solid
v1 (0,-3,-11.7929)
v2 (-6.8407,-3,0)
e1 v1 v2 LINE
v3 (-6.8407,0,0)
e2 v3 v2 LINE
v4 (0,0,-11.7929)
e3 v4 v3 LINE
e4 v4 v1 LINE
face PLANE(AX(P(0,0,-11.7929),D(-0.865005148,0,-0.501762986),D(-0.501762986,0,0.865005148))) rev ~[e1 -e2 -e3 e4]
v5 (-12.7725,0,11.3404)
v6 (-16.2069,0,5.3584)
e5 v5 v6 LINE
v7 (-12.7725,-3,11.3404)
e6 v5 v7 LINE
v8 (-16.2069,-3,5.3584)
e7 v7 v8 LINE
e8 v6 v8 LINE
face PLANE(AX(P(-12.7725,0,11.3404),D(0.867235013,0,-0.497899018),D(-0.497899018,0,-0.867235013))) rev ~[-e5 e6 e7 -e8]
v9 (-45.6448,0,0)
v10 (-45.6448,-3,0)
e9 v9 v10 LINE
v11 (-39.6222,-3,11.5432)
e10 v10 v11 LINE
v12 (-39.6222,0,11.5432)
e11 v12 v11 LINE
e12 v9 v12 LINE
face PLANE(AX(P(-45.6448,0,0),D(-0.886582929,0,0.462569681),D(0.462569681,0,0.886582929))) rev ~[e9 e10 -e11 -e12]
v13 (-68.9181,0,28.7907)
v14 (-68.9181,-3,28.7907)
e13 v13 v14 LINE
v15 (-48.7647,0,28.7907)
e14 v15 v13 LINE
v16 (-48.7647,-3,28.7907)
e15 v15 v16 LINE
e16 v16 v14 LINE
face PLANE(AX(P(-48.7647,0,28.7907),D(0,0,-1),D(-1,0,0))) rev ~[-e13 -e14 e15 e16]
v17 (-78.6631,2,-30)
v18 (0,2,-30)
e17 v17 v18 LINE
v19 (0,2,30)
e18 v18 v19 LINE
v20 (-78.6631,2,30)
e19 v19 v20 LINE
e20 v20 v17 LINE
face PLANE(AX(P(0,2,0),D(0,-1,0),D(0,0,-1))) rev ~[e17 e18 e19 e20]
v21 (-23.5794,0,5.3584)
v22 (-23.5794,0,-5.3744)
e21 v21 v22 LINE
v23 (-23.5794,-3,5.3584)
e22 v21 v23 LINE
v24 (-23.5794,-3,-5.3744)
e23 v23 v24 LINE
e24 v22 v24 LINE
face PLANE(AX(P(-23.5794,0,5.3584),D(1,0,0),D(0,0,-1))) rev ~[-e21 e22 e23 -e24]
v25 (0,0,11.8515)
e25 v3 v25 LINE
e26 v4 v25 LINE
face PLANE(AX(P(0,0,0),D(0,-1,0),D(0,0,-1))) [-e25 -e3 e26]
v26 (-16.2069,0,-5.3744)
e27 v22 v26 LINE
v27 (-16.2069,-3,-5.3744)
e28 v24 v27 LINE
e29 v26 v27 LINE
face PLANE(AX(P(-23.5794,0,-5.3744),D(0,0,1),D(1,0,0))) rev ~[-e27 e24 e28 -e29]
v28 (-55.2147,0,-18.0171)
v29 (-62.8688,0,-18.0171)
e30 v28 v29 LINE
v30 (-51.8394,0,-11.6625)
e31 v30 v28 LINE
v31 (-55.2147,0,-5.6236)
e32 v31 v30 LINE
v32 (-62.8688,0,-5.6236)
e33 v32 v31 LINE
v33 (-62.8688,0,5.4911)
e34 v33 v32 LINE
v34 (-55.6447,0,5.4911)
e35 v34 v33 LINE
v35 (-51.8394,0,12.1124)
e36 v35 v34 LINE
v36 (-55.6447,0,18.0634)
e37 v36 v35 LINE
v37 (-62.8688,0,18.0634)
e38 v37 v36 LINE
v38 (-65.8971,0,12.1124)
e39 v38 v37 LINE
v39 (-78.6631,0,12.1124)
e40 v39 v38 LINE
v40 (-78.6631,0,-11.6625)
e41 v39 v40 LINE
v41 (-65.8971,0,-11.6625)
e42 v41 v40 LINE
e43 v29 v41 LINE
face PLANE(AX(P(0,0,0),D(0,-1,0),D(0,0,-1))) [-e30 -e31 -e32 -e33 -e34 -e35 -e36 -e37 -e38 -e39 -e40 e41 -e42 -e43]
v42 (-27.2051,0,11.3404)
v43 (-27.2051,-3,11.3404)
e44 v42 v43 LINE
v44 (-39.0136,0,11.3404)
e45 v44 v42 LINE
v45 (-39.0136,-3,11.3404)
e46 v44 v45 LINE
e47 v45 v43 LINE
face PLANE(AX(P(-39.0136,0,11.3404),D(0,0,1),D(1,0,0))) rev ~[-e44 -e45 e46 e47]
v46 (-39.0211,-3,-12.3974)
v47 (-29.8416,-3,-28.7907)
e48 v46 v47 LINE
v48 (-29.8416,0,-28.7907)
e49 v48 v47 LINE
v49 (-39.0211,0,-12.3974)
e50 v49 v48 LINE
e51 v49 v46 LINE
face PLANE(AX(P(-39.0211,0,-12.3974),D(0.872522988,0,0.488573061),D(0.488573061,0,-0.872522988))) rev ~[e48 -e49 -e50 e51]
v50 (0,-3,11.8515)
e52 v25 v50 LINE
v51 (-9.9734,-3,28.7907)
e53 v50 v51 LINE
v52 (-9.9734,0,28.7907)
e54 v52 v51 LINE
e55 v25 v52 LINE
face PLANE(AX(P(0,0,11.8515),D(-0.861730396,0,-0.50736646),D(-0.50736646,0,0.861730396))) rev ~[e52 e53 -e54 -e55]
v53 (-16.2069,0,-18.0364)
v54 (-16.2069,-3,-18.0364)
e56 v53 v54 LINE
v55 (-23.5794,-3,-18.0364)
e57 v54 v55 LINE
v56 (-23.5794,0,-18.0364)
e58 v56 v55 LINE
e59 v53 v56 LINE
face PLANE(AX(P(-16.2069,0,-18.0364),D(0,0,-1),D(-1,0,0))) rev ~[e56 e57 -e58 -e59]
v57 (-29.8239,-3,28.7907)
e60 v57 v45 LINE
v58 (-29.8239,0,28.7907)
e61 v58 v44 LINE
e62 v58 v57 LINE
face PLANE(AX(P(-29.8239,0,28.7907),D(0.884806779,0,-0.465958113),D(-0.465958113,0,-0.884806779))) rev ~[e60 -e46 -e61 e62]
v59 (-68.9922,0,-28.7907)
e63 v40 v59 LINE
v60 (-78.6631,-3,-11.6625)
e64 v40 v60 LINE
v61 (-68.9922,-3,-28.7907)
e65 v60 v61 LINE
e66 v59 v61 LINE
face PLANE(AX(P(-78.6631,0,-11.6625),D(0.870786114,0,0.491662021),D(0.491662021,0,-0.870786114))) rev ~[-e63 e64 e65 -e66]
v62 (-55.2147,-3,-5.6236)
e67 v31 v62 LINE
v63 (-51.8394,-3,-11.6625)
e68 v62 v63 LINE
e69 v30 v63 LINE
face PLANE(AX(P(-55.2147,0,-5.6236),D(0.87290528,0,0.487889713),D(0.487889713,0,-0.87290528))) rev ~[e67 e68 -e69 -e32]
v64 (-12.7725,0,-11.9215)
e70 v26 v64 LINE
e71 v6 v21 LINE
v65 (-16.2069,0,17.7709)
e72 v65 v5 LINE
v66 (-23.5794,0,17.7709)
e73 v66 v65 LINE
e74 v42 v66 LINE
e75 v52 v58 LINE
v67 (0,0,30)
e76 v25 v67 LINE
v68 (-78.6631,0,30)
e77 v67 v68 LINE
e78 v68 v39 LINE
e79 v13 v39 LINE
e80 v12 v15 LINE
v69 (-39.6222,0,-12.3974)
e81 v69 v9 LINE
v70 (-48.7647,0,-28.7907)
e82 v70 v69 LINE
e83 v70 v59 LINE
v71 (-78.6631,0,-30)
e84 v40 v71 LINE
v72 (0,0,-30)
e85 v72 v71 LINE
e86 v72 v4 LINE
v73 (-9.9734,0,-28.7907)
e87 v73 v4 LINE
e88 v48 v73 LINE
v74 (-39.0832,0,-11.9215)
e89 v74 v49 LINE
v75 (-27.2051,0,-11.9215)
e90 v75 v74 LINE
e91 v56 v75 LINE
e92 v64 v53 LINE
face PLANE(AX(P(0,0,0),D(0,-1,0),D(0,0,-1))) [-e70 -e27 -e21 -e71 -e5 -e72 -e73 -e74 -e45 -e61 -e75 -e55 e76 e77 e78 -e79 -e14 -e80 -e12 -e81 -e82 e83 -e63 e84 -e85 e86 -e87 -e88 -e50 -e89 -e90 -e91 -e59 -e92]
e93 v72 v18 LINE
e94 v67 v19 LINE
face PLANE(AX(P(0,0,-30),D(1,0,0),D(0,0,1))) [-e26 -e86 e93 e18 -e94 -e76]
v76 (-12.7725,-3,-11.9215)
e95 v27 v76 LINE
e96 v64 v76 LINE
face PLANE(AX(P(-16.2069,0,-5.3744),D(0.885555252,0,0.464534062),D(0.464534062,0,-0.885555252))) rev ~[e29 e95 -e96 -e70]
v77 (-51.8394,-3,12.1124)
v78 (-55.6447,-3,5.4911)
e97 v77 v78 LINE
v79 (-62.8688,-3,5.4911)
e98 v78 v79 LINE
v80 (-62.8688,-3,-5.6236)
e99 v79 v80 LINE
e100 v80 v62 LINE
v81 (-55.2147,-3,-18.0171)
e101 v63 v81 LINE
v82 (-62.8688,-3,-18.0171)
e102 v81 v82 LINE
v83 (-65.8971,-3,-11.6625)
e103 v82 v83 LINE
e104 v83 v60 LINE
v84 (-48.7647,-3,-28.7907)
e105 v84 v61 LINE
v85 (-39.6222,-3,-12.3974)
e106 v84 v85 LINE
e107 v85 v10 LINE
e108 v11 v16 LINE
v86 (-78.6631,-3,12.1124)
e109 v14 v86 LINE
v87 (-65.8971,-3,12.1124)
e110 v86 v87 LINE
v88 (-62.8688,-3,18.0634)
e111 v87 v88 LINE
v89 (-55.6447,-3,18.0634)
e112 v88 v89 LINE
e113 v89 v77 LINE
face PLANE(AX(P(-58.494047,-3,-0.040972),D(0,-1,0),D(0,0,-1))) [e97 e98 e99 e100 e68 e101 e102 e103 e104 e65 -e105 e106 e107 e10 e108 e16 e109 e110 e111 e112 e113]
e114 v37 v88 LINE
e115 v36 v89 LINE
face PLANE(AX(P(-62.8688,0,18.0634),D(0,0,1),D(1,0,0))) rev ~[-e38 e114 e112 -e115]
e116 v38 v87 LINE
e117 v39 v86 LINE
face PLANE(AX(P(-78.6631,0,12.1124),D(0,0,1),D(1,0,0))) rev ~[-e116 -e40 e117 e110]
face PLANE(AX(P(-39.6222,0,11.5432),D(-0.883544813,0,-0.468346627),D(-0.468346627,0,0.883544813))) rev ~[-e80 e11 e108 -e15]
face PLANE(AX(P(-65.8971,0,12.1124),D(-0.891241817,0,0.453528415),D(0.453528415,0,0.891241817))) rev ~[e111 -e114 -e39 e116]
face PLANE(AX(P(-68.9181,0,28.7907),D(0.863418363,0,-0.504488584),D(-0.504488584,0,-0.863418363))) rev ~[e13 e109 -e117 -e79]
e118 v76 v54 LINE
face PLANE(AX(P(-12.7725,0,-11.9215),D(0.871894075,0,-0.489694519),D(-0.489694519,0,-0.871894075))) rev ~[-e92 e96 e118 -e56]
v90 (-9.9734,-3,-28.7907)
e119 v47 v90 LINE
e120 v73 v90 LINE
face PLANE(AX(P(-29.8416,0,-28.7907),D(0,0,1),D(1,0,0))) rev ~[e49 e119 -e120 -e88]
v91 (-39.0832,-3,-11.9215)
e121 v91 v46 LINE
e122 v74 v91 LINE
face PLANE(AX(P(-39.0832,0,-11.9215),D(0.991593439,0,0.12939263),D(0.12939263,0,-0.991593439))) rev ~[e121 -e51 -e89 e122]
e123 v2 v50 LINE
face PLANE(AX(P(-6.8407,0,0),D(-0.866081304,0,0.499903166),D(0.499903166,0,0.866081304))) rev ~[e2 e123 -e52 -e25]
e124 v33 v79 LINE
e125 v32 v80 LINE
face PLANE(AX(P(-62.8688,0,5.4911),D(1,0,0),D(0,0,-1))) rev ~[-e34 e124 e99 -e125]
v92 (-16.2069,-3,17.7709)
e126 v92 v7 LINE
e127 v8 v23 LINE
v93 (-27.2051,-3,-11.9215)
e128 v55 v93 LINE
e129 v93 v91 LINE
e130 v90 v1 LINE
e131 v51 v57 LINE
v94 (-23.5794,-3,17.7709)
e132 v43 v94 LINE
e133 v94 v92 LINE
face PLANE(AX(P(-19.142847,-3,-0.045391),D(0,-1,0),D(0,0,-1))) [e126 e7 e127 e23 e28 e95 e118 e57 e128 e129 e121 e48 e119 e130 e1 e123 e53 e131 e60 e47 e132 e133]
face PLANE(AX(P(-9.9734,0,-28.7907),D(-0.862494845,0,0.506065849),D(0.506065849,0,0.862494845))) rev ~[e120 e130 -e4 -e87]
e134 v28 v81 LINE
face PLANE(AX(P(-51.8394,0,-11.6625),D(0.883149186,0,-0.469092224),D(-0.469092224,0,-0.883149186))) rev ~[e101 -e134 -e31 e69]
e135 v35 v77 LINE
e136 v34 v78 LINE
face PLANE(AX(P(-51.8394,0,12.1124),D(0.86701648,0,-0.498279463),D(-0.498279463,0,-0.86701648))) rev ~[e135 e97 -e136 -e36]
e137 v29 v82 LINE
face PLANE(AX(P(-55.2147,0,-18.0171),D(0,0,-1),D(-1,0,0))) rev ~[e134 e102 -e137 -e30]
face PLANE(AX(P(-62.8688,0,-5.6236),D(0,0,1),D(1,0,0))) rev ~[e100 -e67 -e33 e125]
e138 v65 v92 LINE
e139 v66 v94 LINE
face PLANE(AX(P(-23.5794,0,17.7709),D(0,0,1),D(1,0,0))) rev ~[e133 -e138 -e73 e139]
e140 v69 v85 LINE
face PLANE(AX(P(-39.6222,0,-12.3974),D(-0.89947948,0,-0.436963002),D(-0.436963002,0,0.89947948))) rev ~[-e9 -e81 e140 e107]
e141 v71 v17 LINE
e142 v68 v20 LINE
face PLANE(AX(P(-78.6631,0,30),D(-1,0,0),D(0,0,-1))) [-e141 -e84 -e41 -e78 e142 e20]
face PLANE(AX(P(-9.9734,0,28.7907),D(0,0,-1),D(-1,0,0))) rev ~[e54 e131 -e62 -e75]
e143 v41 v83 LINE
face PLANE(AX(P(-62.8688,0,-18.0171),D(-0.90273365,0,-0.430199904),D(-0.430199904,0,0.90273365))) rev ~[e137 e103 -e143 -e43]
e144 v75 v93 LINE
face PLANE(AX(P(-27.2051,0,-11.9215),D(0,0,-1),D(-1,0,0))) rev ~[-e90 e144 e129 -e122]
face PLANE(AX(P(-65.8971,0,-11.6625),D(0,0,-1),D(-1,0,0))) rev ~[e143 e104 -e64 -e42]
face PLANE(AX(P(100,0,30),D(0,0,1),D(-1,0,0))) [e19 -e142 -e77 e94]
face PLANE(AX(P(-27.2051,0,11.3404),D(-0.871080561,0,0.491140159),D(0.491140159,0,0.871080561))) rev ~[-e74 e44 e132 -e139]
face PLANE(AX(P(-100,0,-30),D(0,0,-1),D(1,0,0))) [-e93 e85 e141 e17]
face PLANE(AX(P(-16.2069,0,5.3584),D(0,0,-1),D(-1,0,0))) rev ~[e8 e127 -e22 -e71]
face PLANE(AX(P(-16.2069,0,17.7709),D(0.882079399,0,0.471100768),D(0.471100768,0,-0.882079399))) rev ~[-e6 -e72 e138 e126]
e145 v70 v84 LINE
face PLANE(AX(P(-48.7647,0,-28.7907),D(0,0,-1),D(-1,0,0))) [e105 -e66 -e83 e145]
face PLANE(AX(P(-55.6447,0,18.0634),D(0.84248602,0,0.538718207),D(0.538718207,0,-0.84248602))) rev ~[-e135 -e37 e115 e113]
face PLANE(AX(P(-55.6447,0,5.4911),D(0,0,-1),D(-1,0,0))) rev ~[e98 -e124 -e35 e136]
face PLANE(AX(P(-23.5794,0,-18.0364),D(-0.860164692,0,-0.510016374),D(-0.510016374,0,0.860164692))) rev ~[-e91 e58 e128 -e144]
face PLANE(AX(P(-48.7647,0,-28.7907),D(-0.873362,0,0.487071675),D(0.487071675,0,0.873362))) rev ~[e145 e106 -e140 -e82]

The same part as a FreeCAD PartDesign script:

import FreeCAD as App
import Part
import Sketcher

V = App.Vector

doc = App.newDocument("Part")
params = doc.addObject("Spreadsheet::Sheet", "Params")
for row, (alias, value) in enumerate([
    ("sketch1_height", "60 mm"),
    ("pad1_length", "2 mm"),
    ("sketch2_height", "10.95 mm"),
    ("sketch2_length", "0.48 mm"),
    ("sketch2_length2", "19.94 mm"),
    ("sketch2_length3", "13.0199 mm"),
    ("pad2_length", "3 mm"),
    ("sketch3_width", "100 mm"),
    ("sketch3_height", "60 mm"),
    ("pocket1_length", "14.3776 mm"),
    ("sketch4_width", "100 mm"),
    ("sketch4_height", "60 mm"),
    ("pocket2_length", "57.8718 mm"),
], start=1):
    params.set(f"A{row}", alias)
    params.set(f"B{row}", "=" + value)
    params.setAlias(f"B{row}", alias)

body = doc.addObject("PartDesign::Body", "Body")

# Sketch on XZ plane
sketch1 = body.newObject("Sketcher::SketchObject", "Sketch")
sketch1.AttachmentSupport = (doc.getObject("XZ_Plane"), [""])
sketch1.MapMode = "FlatFace"
sketch1.addGeometry([
    Part.LineSegment(V(-100, 30, 0), V(-100, -30, 0)),
    Part.LineSegment(V(-100, -30, 0), V(100, -30, 0)),
    Part.LineSegment(V(100, -30, 0), V(100, 30, 0)),
    Part.LineSegment(V(100, 30, 0), V(-100, 30, 0)),
], False)
sketch1.addConstraint([
    Sketcher.Constraint("Coincident", 0, 2, 1, 1),
    Sketcher.Constraint("Coincident", 1, 2, 2, 1),
    Sketcher.Constraint("Coincident", 2, 2, 3, 1),
    Sketcher.Constraint("Coincident", 3, 2, 0, 1),
    Sketcher.Constraint("Vertical", 0),
    Sketcher.Constraint("Horizontal", 1),
    Sketcher.Constraint("Vertical", 2),
    Sketcher.Constraint("Horizontal", 3),
    Sketcher.Constraint("Symmetric", 0, 2, 2, 2, -1, 1),
    Sketcher.Constraint("DistanceX", 0, 2, -1, 1, 100.0),
    Sketcher.Constraint("DistanceY", 0, 2, 0, 1, 60.0),
])
sketch1.setExpression("Constraints[10]", "Params.sketch1_height")
pad1 = body.newObject("PartDesign::Pad", "Pad")
pad1.Profile = sketch1
pad1.setExpression("Length", "Params.pad1_length")
pad1.Reversed = True

# Sketch on XZ plane
sketch2 = body.newObject("Sketcher::SketchObject", "Sketch001")
sketch2.AttachmentSupport = (doc.getObject("XZ_Plane"), [""])
sketch2.MapMode = "FlatFace"
sketch2.addGeometry([
    Part.LineSegment(V(-45.6448, 0, 0), V(-39.6222, 11.5432, 0)),  # 0
    Part.LineSegment(V(-39.6222, 11.5432, 0), V(-48.7647, 28.7907, 0)),  # 1
    Part.LineSegment(V(-48.7647, 28.7907, 0), V(-68.9181, 28.7907, 0)),  # 2
    Part.LineSegment(V(-68.9181, 28.7907, 0), V(-78.6631, 12.1124, 0)),  # 3
    Part.LineSegment(V(-78.6631, 12.1124, 0), V(-65.8971, 12.1124, 0)),  # 4
    Part.LineSegment(V(-65.8971, 12.1124, 0), V(-62.8688, 18.0634, 0)),  # 5
    Part.LineSegment(V(-62.8688, 18.0634, 0), V(-55.6447, 18.0634, 0)),  # 6
    Part.LineSegment(V(-55.6447, 18.0634, 0), V(-51.8394, 12.1124, 0)),  # 7
    Part.LineSegment(V(-51.8394, 12.1124, 0), V(-55.6447, 5.4911, 0)),  # 8
    Part.LineSegment(V(-55.6447, 5.4911, 0), V(-62.8688, 5.4911, 0)),  # 9
    Part.LineSegment(V(-62.8688, 5.4911, 0), V(-62.8688, -5.6236, 0)),  # 10
    Part.LineSegment(V(-62.8688, -5.6236, 0), V(-55.2147, -5.6236, 0)),  # 11
    Part.LineSegment(V(-55.2147, -5.6236, 0), V(-51.8394, -11.6625, 0)),  # 12
    Part.LineSegment(V(-51.8394, -11.6625, 0), V(-55.2147, -18.0171, 0)),  # 13
    Part.LineSegment(V(-55.2147, -18.0171, 0), V(-62.8688, -18.0171, 0)),  # 14
    Part.LineSegment(V(-62.8688, -18.0171, 0), V(-65.8971, -11.6625, 0)),  # 15
    Part.LineSegment(V(-65.8971, -11.6625, 0), V(-78.6631, -11.6625, 0)),  # 16
    Part.LineSegment(V(-78.6631, -11.6625, 0), V(-68.9922, -28.7907, 0)),  # 17
    Part.LineSegment(V(-68.9922, -28.7907, 0), V(-48.7647, -28.7907, 0)),  # 18
    Part.LineSegment(V(-48.7647, -28.7907, 0), V(-39.6222, -12.3974, 0)),  # 19
    Part.LineSegment(V(-39.6222, -12.3974, 0), V(-45.6448, 0, 0)),  # 20
    Part.LineSegment(V(-9.9734, 28.7907, 0), V(-29.8239, 28.7907, 0)),  # 21
    Part.LineSegment(V(-29.8239, 28.7907, 0), V(-39.0136, 11.3404, 0)),  # 22
    Part.LineSegment(V(-39.0136, 11.3404, 0), V(-27.2051, 11.3404, 0)),  # 23
    Part.LineSegment(V(-27.2051, 11.3404, 0), V(-23.5794, 17.7709, 0)),  # 24
    Part.LineSegment(V(-23.5794, 17.7709, 0), V(-16.2069, 17.7709, 0)),  # 25
    Part.LineSegment(V(-16.2069, 17.7709, 0), V(-12.7725, 11.3404, 0)),  # 26
    Part.LineSegment(V(-12.7725, 11.3404, 0), V(-16.2069, 5.3584, 0)),  # 27
    Part.LineSegment(V(-16.2069, 5.3584, 0), V(-23.5794, 5.3584, 0)),  # 28
    Part.LineSegment(V(-23.5794, 5.3584, 0), V(-23.5794, -5.3744, 0)),  # 29
    Part.LineSegment(V(-23.5794, -5.3744, 0), V(-16.2069, -5.3744, 0)),  # 30
    Part.LineSegment(V(-16.2069, -5.3744, 0), V(-12.7725, -11.9215, 0)),  # 31
    Part.LineSegment(V(-12.7725, -11.9215, 0), V(-16.2069, -18.0364, 0)),  # 32
    Part.LineSegment(V(-16.2069, -18.0364, 0), V(-23.5794, -18.0364, 0)),  # 33
    Part.LineSegment(V(-23.5794, -18.0364, 0), V(-27.2051, -11.9215, 0)),  # 34
    Part.LineSegment(V(-27.2051, -11.9215, 0), V(-39.0832, -11.9215, 0)),  # 35
    Part.LineSegment(V(-39.0832, -11.9215, 0), V(-39.0211, -12.3974, 0)),  # 36
    Part.LineSegment(V(-39.0211, -12.3974, 0), V(-29.8416, -28.7907, 0)),  # 37
    Part.LineSegment(V(-29.8416, -28.7907, 0), V(-9.9734, -28.7907, 0)),  # 38
    Part.LineSegment(V(-9.9734, -28.7907, 0), V(0, -11.7929, 0)),  # 39
    Part.LineSegment(V(0, -11.7929, 0), V(-6.8407, 0, 0)),  # 40
    Part.LineSegment(V(-6.8407, 0, 0), V(0, 11.8515, 0)),  # 41
    Part.LineSegment(V(0, 11.8515, 0), V(-9.9734, 28.7907, 0)),  # 42
    Part.LineSegment(V(29.5768, 28.7907, 0), V(9.4303, 28.7907, 0)),  # 43
    Part.LineSegment(V(9.4303, 28.7907, 0), V(0, 12.3815, 0)),  # 44
    Part.LineSegment(V(0, 12.3815, 0), V(0.2872, 11.8515, 0)),  # 45
    Part.LineSegment(V(0.2872, 11.8515, 0), V(12.5492, 11.8515, 0)),  # 46
    Part.LineSegment(V(12.5492, 11.8515, 0), V(15.7991, 18.0247, 0)),  # 47
    Part.LineSegment(V(15.7991, 18.0247, 0), V(23.265, 18.0247, 0)),  # 48
    Part.LineSegment(V(23.265, 18.0247, 0), V(26.8369, 11.8515, 0)),  # 49
    Part.LineSegment(V(26.8369, 11.8515, 0), V(23.265, 5.318, 0)),  # 50
    Part.LineSegment(V(23.265, 5.318, 0), V(15.7991, 5.318, 0)),  # 51
    Part.LineSegment(V(15.7991, 5.318, 0), V(15.7991, -5.632, 0)),  # 52
    Part.LineSegment(V(15.7991, -5.632, 0), V(23.265, -5.632, 0)),  # 53
    Part.LineSegment(V(23.265, -5.632, 0), V(26.7839, -11.7003, 0)),  # 54
    Part.LineSegment(V(26.7839, -11.7003, 0), V(23.265, -17.8487, 0)),  # 55
    Part.LineSegment(V(23.265, -17.8487, 0), V(15.768, -17.8487, 0)),  # 56
    Part.LineSegment(V(15.768, -17.8487, 0), V(12.2913, -11.7003, 0)),  # 57
    Part.LineSegment(V(12.2913, -11.7003, 0), V(0.3007, -11.6312, 0)),  # 58
    Part.LineSegment(V(0.3007, -11.6312, 0), V(0, -12.7084, 0)),  # 59
    Part.LineSegment(V(0, -12.7084, 0), V(9.391, -28.7907, 0)),  # 60
    Part.LineSegment(V(9.391, -28.7907, 0), V(29.5768, -28.7907, 0)),  # 61
    Part.LineSegment(V(29.5768, -28.7907, 0), V(39.4696, -11.7929, 0)),  # 62
    Part.LineSegment(V(39.4696, -11.7929, 0), V(32.5504, 0, 0)),  # 63
    Part.LineSegment(V(32.5504, 0, 0), V(39.014, 12.1809, 0)),  # 64
    Part.LineSegment(V(39.014, 12.1809, 0), V(29.5768, 28.7907, 0)),  # 65
    Part.LineSegment(V(49.0927, 28.7907, 0), V(39.3531, 11.3913, 0)),  # 66
    Part.LineSegment(V(39.3531, 11.3913, 0), V(49.0927, -5.4746, 0)),  # 67
    Part.LineSegment(V(49.0927, -5.4746, 0), V(56.0977, -5.4746, 0)),  # 68
    Part.LineSegment(V(56.0977, -5.4746, 0), V(42.8739, -28.7907, 0)),  # 69
    Part.LineSegment(V(42.8739, -28.7907, 0), V(55.3829, -28.7907, 0)),  # 70
    Part.LineSegment(V(55.3829, -28.7907, 0), V(78.6631, 11.3946, 0)),  # 71
    Part.LineSegment(V(78.6631, 11.3946, 0), V(68.964, 28.7907, 0)),  # 72
    Part.LineSegment(V(68.964, 28.7907, 0), V(49.0927, 28.7907, 0)),  # 73
    Part.LineSegment(V(55.3868, 5.6144, 0), V(51.7218, 11.7746, 0)),  # 74
    Part.LineSegment(V(51.7218, 11.7746, 0), V(55.3868, 17.9349, 0)),  # 75
    Part.LineSegment(V(55.3868, 17.9349, 0), V(62.6387, 17.9349, 0)),  # 76
    Part.LineSegment(V(62.6387, 17.9349, 0), V(66.3037, 11.7746, 0)),  # 77
    Part.LineSegment(V(66.3037, 11.7746, 0), V(62.6387, 5.6144, 0)),  # 78
    Part.LineSegment(V(62.6387, 5.6144, 0), V(55.3868, 5.6144, 0)),  # 79
], False)
sketch2.addConstraint([
    Sketcher.Constraint("Coincident", 0, 2, 1, 1),
    Sketcher.Constraint("Coincident", 1, 2, 2, 1),
    Sketcher.Constraint("Coincident", 2, 2, 3, 1),
    Sketcher.Constraint("Coincident", 3, 2, 4, 1),
    Sketcher.Constraint("Coincident", 4, 2, 5, 1),
    Sketcher.Constraint("Coincident", 5, 2, 6, 1),
    Sketcher.Constraint("Coincident", 6, 2, 7, 1),
    Sketcher.Constraint("Coincident", 7, 2, 8, 1),
    Sketcher.Constraint("Coincident", 8, 2, 9, 1),
    Sketcher.Constraint("Coincident", 9, 2, 10, 1),
    Sketcher.Constraint("Coincident", 10, 2, 11, 1),
    Sketcher.Constraint("Coincident", 11, 2, 12, 1),
    Sketcher.Constraint("Coincident", 12, 2, 13, 1),
    Sketcher.Constraint("Coincident", 13, 2, 14, 1),
    Sketcher.Constraint("Coincident", 14, 2, 15, 1),
    Sketcher.Constraint("Coincident", 15, 2, 16, 1),
    Sketcher.Constraint("Coincident", 16, 2, 17, 1),
    Sketcher.Constraint("Coincident", 17, 2, 18, 1),
    Sketcher.Constraint("Coincident", 18, 2, 19, 1),
    Sketcher.Constraint("Coincident", 19, 2, 20, 1),
    Sketcher.Constraint("Coincident", 20, 2, 0, 1),
    Sketcher.Constraint("Coincident", 21, 2, 22, 1),
    Sketcher.Constraint("Coincident", 22, 2, 23, 1),
    Sketcher.Constraint("Coincident", 23, 2, 24, 1),
    Sketcher.Constraint("Coincident", 24, 2, 25, 1),
    Sketcher.Constraint("Coincident", 25, 2, 26, 1),
    Sketcher.Constraint("Coincident", 26, 2, 27, 1),
    Sketcher.Constraint("Coincident", 27, 2, 28, 1),
    Sketcher.Constraint("Coincident", 28, 2, 29, 1),
    Sketcher.Constraint("Coincident", 29, 2, 30, 1),
    Sketcher.Constraint("Coincident", 30, 2, 31, 1),
    Sketcher.Constraint("Coincident", 31, 2, 32, 1),
    Sketcher.Constraint("Coincident", 32, 2, 33, 1),
    Sketcher.Constraint("Coincident", 33, 2, 34, 1),
    Sketcher.Constraint("Coincident", 34, 2, 35, 1),
    Sketcher.Constraint("Coincident", 35, 2, 36, 1),
    Sketcher.Constraint("Coincident", 36, 2, 37, 1),
    Sketcher.Constraint("Coincident", 37, 2, 38, 1),
    Sketcher.Constraint("Coincident", 38, 2, 39, 1),
    Sketcher.Constraint("Coincident", 39, 2, 40, 1),
    Sketcher.Constraint("Coincident", 40, 2, 41, 1),
    Sketcher.Constraint("Coincident", 41, 2, 42, 1),
    Sketcher.Constraint("Coincident", 42, 2, 21, 1),
    Sketcher.Constraint("Coincident", 43, 2, 44, 1),
    Sketcher.Constraint("Coincident", 44, 2, 45, 1),
    Sketcher.Constraint("Coincident", 45, 2, 46, 1),
    Sketcher.Constraint("Coincident", 46, 2, 47, 1),
    Sketcher.Constraint("Coincident", 47, 2, 48, 1),
    Sketcher.Constraint("Coincident", 48, 2, 49, 1),
    Sketcher.Constraint("Coincident", 49, 2, 50, 1),
    Sketcher.Constraint("Coincident", 50, 2, 51, 1),
    Sketcher.Constraint("Coincident", 51, 2, 52, 1),
    Sketcher.Constraint("Coincident", 52, 2, 53, 1),
    Sketcher.Constraint("Coincident", 53, 2, 54, 1),
    Sketcher.Constraint("Coincident", 54, 2, 55, 1),
    Sketcher.Constraint("Coincident", 55, 2, 56, 1),
    Sketcher.Constraint("Coincident", 56, 2, 57, 1),
    Sketcher.Constraint("Coincident", 57, 2, 58, 1),
    Sketcher.Constraint("Coincident", 58, 2, 59, 1),
    Sketcher.Constraint("Coincident", 59, 2, 60, 1),
    Sketcher.Constraint("Coincident", 60, 2, 61, 1),
    Sketcher.Constraint("Coincident", 61, 2, 62, 1),
    Sketcher.Constraint("Coincident", 62, 2, 63, 1),
    Sketcher.Constraint("Coincident", 63, 2, 64, 1),
    Sketcher.Constraint("Coincident", 64, 2, 65, 1),
    Sketcher.Constraint("Coincident", 65, 2, 43, 1),
    Sketcher.Constraint("Coincident", 66, 2, 67, 1),
    Sketcher.Constraint("Coincident", 67, 2, 68, 1),
    Sketcher.Constraint("Coincident", 68, 2, 69, 1),
    Sketcher.Constraint("Coincident", 69, 2, 70, 1),
    Sketcher.Constraint("Coincident", 70, 2, 71, 1),
    Sketcher.Constraint("Coincident", 71, 2, 72, 1),
    Sketcher.Constraint("Coincident", 72, 2, 73, 1),
    Sketcher.Constraint("Coincident", 73, 2, 66, 1),
    Sketcher.Constraint("Coincident", 74, 2, 75, 1),
    Sketcher.Constraint("Coincident", 75, 2, 76, 1),
    Sketcher.Constraint("Coincident", 76, 2, 77, 1),
    Sketcher.Constraint("Coincident", 77, 2, 78, 1),
    Sketcher.Constraint("Coincident", 78, 2, 79, 1),
    Sketcher.Constraint("Coincident", 79, 2, 74, 1),
    Sketcher.Constraint("Horizontal", 2),
    Sketcher.Constraint("Horizontal", 4),
    Sketcher.Constraint("Horizontal", 6),
    Sketcher.Constraint("Horizontal", 9),
    Sketcher.Constraint("Vertical", 10),
    Sketcher.Constraint("Horizontal", 11),
    Sketcher.Constraint("Horizontal", 14),
    Sketcher.Constraint("Horizontal", 16),
    Sketcher.Constraint("Horizontal", 18),
    Sketcher.Constraint("Horizontal", 21),
    Sketcher.Constraint("Horizontal", 23),
    Sketcher.Constraint("Horizontal", 25),
    Sketcher.Constraint("Horizontal", 28),
    Sketcher.Constraint("Vertical", 29),
    Sketcher.Constraint("Horizontal", 30),
    Sketcher.Constraint("Horizontal", 33),
    Sketcher.Constraint("Horizontal", 35),
    Sketcher.Constraint("Horizontal", 38),
    Sketcher.Constraint("Horizontal", 43),
    Sketcher.Constraint("Horizontal", 46),
    Sketcher.Constraint("Horizontal", 48),
    Sketcher.Constraint("Horizontal", 51),
    Sketcher.Constraint("Vertical", 52),
    Sketcher.Constraint("Horizontal", 53),
    Sketcher.Constraint("Horizontal", 56),
    Sketcher.Constraint("Horizontal", 61),
    Sketcher.Constraint("Horizontal", 68),
    Sketcher.Constraint("Horizontal", 70),
    Sketcher.Constraint("Horizontal", 73),
    Sketcher.Constraint("Horizontal", 76),
    Sketcher.Constraint("Horizontal", 79),
    Sketcher.Constraint("PointOnObject", 20, 2, -1),
    Sketcher.Constraint("PointOnObject", 39, 2, -2),
    Sketcher.Constraint("PointOnObject", 40, 2, -1),
    Sketcher.Constraint("PointOnObject", 41, 2, -2),
    Sketcher.Constraint("PointOnObject", 44, 2, -2),
    Sketcher.Constraint("PointOnObject", 59, 2, -2),
    Sketcher.Constraint("PointOnObject", 63, 2, -1),
    Sketcher.Constraint("DistanceY", 52, 2, 52, 1, 10.95),
    Sketcher.Constraint("Distance", 36, 0.48),
    Sketcher.Constraint("Distance", 66, 19.94),
    Sketcher.Constraint("DistanceX", 4, 1, 4, 2, 12.766),
    Sketcher.Constraint("DistanceX", 6, 1, 6, 2, 7.224),
    Sketcher.Constraint("DistanceX", 9, 2, 9, 1, 7.224),
    Sketcher.Constraint("DistanceX", 11, 1, 11, 2, 7.654),
    Sketcher.Constraint("DistanceX", 14, 2, 14, 1, 7.654),
    Sketcher.Constraint("DistanceX", 16, 2, 16, 1, 12.766),
    Sketcher.Constraint("DistanceX", 35, 2, 35, 1, 11.878),
    Sketcher.Constraint("DistanceX", 46, 1, 46, 2, 12.262),
    Sketcher.Constraint("DistanceX", 48, 1, 48, 2, 7.466),
    Sketcher.Constraint("DistanceX", 51, 2, 51, 1, 7.466),
    Sketcher.Constraint("DistanceX", 53, 1, 53, 2, 7.466),
    Sketcher.Constraint("DistanceX", 56, 2, 56, 1, 7.497),
    Sketcher.Constraint("DistanceX", 68, 1, 68, 2, 7.005),
    Sketcher.Constraint("DistanceX", 70, 1, 70, 2, 12.509),
    Sketcher.Constraint("DistanceX", 76, 1, 76, 2, 7.252),
    Sketcher.Constraint("DistanceX", 79, 2, 79, 1, 7.252),
    Sketcher.Constraint("Distance", 34, 7.109),
    Sketcher.Constraint("Distance", 41, 13.684),
    Sketcher.Constraint("Distance", 44, 18.926),
    Sketcher.Constraint("Distance", 49, 7.132),
    Sketcher.Constraint("Distance", 62, 19.667),
    Sketcher.Constraint("Distance", 63, 13.673),
    Sketcher.Constraint("Distance", 67, 19.476),
    Sketcher.Constraint("Distance", 69, 26.805),
    Sketcher.Constraint("Distance", 74, 7.168),
    Sketcher.Constraint("Distance", 75, 7.168),
    Sketcher.Constraint("Distance", 77, 7.168),
    Sketcher.Constraint("Distance", 78, 7.168),
    Sketcher.Constraint("DistanceX", 2, 2, 2, 1, 20.1534),
    Sketcher.Constraint("DistanceX", 18, 1, 18, 2, 20.2275),
    Sketcher.Constraint("DistanceX", 21, 2, 21, 1, 19.8505),
    Sketcher.Constraint("DistanceX", 23, 1, 23, 2, 11.8085),
    Sketcher.Constraint("DistanceX", 25, 1, 25, 2, 7.3725),
    Sketcher.Constraint("DistanceX", 28, 2, 28, 1, 7.3725),
    Sketcher.Constraint("DistanceX", 30, 1, 30, 2, 7.3725),
    Sketcher.Constraint("DistanceX", 33, 2, 33, 1, 7.3725),
    Sketcher.Constraint("DistanceX", 38, 1, 38, 2, 19.8682),
    Sketcher.Constraint("DistanceX", 43, 2, 43, 1, 20.1465),
    Sketcher.Constraint("DistanceX", 61, 1, 61, 2, 20.1858),
    Sketcher.Constraint("DistanceX", 73, 2, 73, 1, 19.8713),
    Sketcher.Constraint("DistanceY", 10, 2, 10, 1, 11.1147),
    Sketcher.Constraint("DistanceY", 29, 2, 29, 1, 10.7328),
    Sketcher.Constraint("DistanceX", 2, 2, -1, 1, 68.918),
    Sketcher.Constraint("DistanceX", 3, 2, -1, 1, 78.663),
    Sketcher.Constraint("DistanceY", -1, 1, 8, 2, 5.491),
    Sketcher.Constraint("DistanceY", 13, 2, -1, 1, 18.017),
    Sketcher.Constraint("DistanceX", 15, 2, -1, 1, 65.897),
    Sketcher.Constraint("DistanceX", 21, 2, -1, 1, 29.824),
    Sketcher.Constraint("DistanceX", 23, 2, -1, 1, 27.205),
    Sketcher.Constraint("DistanceY", -1, 1, 24, 2, 17.771),
    Sketcher.Constraint("DistanceX", 25, 2, -1, 1, 16.207),
    Sketcher.Constraint("DistanceX", 27, 2, -1, 1, 16.207),
    Sketcher.Constraint("DistanceX", 32, 2, -1, 1, 16.207),
    Sketcher.Constraint("DistanceX", 34, 2, -1, 1, 27.205),
    Sketcher.Constraint("DistanceX", 36, 2, -1, 1, 39.021),
    Sketcher.Constraint("DistanceY", 39, 2, -1, 1, 11.793),
    Sketcher.Constraint("DistanceX", -1, 1, 47, 2, 15.799),
    Sketcher.Constraint("DistanceX", -1, 1, 49, 2, 26.837),
    Sketcher.Constraint("DistanceX", -1, 1, 50, 2, 23.265),
    Sketcher.Constraint("DistanceY", -1, 1, 50, 2, 5.318),
    Sketcher.Constraint("DistanceX", -1, 1, 54, 2, 26.784),
    Sketcher.Constraint("DistanceX", -1, 1, 55, 2, 23.265),
    Sketcher.Constraint("DistanceX", -1, 1, 60, 2, 9.391),
    Sketcher.Constraint("DistanceY", 62, 2, -1, 1, 11.793),
    Sketcher.Constraint("DistanceX", -1, 1, 64, 2, 39.014),
    Sketcher.Constraint("DistanceY", -1, 1, 64, 2, 12.181),
    Sketcher.Constraint("DistanceX", -1, 1, 66, 2, 39.353),
    Sketcher.Constraint("DistanceX", -1, 1, 69, 2, 42.874),
    Sketcher.Constraint("DistanceX", -1, 1, 71, 2, 78.663),
    Sketcher.Constraint("DistanceX", -1, 1, 72, 2, 68.964),
    Sketcher.Constraint("DistanceY", -1, 1, 75, 2, 17.935),
    Sketcher.Constraint("Distance", 0, 13.0199),
    Sketcher.Constraint("Distance", 1, 19.5208),
    Sketcher.Constraint("Distance", 3, 19.3166),
    Sketcher.Constraint("Distance", 5, 6.6772),
    Sketcher.Constraint("Distance", 7, 7.0636),
    Sketcher.Constraint("Distance", 8, 7.6369),
    Sketcher.Constraint("Distance", 12, 6.9182),
    Sketcher.Constraint("Distance", 13, 7.1954),
    Sketcher.Constraint("Distance", 15, 7.0393),
    Sketcher.Constraint("Distance", 17, 19.6698),
    Sketcher.Constraint("Distance", 19, 18.7703),
    Sketcher.Constraint("Distance", 20, 13.7829),
    Sketcher.Constraint("Distance", 22, 19.7222),
    Sketcher.Constraint("Distance", 24, 7.3822),
    Sketcher.Constraint("Distance", 26, 7.2902),
    Sketcher.Constraint("Distance", 27, 6.8978),
    Sketcher.Constraint("Distance", 31, 7.3932),
    Sketcher.Constraint("Distance", 32, 7.0134),
    Sketcher.Constraint("Distance", 37, 18.7884),
    Sketcher.Constraint("Distance", 39, 19.7077),
    Sketcher.Constraint("Distance", 40, 13.6333),
    Sketcher.Constraint("Distance", 45, 0.6028),
    Sketcher.Constraint("Distance", 47, 6.9764),
    Sketcher.Constraint("Distance", 50, 7.4461),
    Sketcher.Constraint("Distance", 54, 7.0148),
    Sketcher.Constraint("Distance", 55, 7.0842),
    Sketcher.Constraint("Distance", 57, 7.0633),
    Sketcher.Constraint("Distance", 58, 11.9908),
    Sketcher.Constraint("Distance", 59, 1.1184),
    Sketcher.Constraint("Distance", 60, 18.6234),
    Sketcher.Constraint("Distance", 64, 13.7896),
    Sketcher.Constraint("Distance", 65, 19.1036),
    Sketcher.Constraint("Distance", 71, 46.4416),
    Sketcher.Constraint("Distance", 72, 19.9172),
    Sketcher.Constraint("DistanceX", 0, 2, -1, 1, 39.6222),
    Sketcher.Constraint("DistanceY", -1, 1, 0, 2, 11.5432),
    Sketcher.Constraint("DistanceX", 5, 2, -1, 1, 62.8688),
    Sketcher.Constraint("DistanceX", 7, 2, -1, 1, 51.8394),
    Sketcher.Constraint("DistanceX", 12, 2, -1, 1, 51.8394),
    Sketcher.Constraint("DistanceX", 17, 2, -1, 1, 68.9922),
    Sketcher.Constraint("DistanceX", 26, 2, -1, 1, 12.7725),
    Sketcher.Constraint("DistanceX", 31, 2, -1, 1, 12.7725),
    Sketcher.Constraint("DistanceX", -1, 1, 43, 2, 9.4303),
    Sketcher.Constraint("DistanceX", -1, 1, 57, 2, 12.2913),
    Sketcher.Constraint("DistanceY", -1, 1, 66, 2, 11.3913),
    Sketcher.Constraint("DistanceX", -1, 1, 74, 2, 51.7218),
    Sketcher.Constraint("DistanceY", -1, 1, 74, 2, 11.7746),
    Sketcher.Constraint("DistanceX", -1, 1, 77, 2, 66.3037),
])
sketch2.setExpression("Constraints[118]", "Params.sketch2_height")
sketch2.setExpression("Constraints[119]", "Params.sketch2_length")
sketch2.setExpression("Constraints[120]", "Params.sketch2_length2")
sketch2.setExpression("Constraints[192]", "Params.sketch2_length3")
pad2 = body.newObject("PartDesign::Pad", "Pad001")
pad2.Profile = sketch2
pad2.setExpression("Length", "Params.pad2_length")

# Sketch on XZ plane
sketch3 = body.newObject("Sketcher::SketchObject", "Sketch002")
sketch3.AttachmentSupport = (doc.getObject("XZ_Plane"), [""])
sketch3.MapMode = "FlatFace"
sketch3.addGeometry([
    Part.LineSegment(V(0, 30, 0), V(0, -30, 0)),  # 0
    Part.LineSegment(V(0, -30, 0), V(100, -30, 0)),  # 1
    Part.LineSegment(V(100, -30, 0), V(100, 30, 0)),  # 2
    Part.LineSegment(V(100, 30, 0), V(0, 30, 0)),  # 3
    Part.LineSegment(V(-78.6631, -30, 0), V(-78.6631, 30, 0)),  # 4
    Part.LineSegment(V(-78.6631, 30, 0), V(-100, 30, 0)),  # 5
    Part.LineSegment(V(-100, 30, 0), V(-100, -30, 0)),  # 6
    Part.LineSegment(V(-100, -30, 0), V(-78.6631, -30, 0)),  # 7
], False)
sketch3.addConstraint([
    Sketcher.Constraint("Coincident", 0, 2, 1, 1),
    Sketcher.Constraint("Coincident", 1, 2, 2, 1),
    Sketcher.Constraint("Coincident", 2, 2, 3, 1),
    Sketcher.Constraint("Coincident", 3, 2, 0, 1),
    Sketcher.Constraint("Coincident", 4, 2, 5, 1),
    Sketcher.Constraint("Coincident", 5, 2, 6, 1),
    Sketcher.Constraint("Coincident", 6, 2, 7, 1),
    Sketcher.Constraint("Coincident", 7, 2, 4, 1),
    Sketcher.Constraint("Vertical", 0),
    Sketcher.Constraint("Horizontal", 1),
    Sketcher.Constraint("Vertical", 2),
    Sketcher.Constraint("Horizontal", 3),
    Sketcher.Constraint("Vertical", 4),
    Sketcher.Constraint("Horizontal", 5),
    Sketcher.Constraint("Vertical", 6),
    Sketcher.Constraint("Horizontal", 7),
    Sketcher.Constraint("Symmetric", 0, 2, 3, 2, -1, 1),
    Sketcher.Constraint("Symmetric", 1, 2, 5, 2, -1, 1),
    Sketcher.Constraint("Horizontal", 1, 2, 6, 2),
    Sketcher.Constraint("DistanceX", 1, 1, 1, 2, 100.0),
    Sketcher.Constraint("DistanceY", 0, 2, 0, 1, 60.0),
    Sketcher.Constraint("DistanceX", 5, 2, 5, 1, 21.337),
])
sketch3.setExpression("Constraints[19]", "Params.sketch3_width")
sketch3.setExpression("Constraints[20]", "Params.sketch3_height")
pocket1 = body.newObject("PartDesign::Pocket", "Pocket")
pocket1.Profile = sketch3
pocket1.setExpression("Length", "Params.pocket1_length")
pocket1.Reversed = True

# Sketch on XZ plane
sketch4 = body.newObject("Sketcher::SketchObject", "Sketch003")
sketch4.AttachmentSupport = (doc.getObject("XZ_Plane"), [""])
sketch4.MapMode = "FlatFace"
sketch4.addGeometry([
    Part.LineSegment(V(100, 30, 0), V(0, 30, 0)),  # 0
    Part.LineSegment(V(0, 30, 0), V(0, -30, 0)),  # 1
    Part.LineSegment(V(0, -30, 0), V(100, -30, 0)),  # 2
    Part.LineSegment(V(100, -30, 0), V(100, 30, 0)),  # 3
    Part.LineSegment(V(-78.6631, 30, 0), V(-100, 30, 0)),  # 4
    Part.LineSegment(V(-100, 30, 0), V(-100, -30, 0)),  # 5
    Part.LineSegment(V(-100, -30, 0), V(-78.6631, -30, 0)),  # 6
    Part.LineSegment(V(-78.6631, -30, 0), V(-78.6631, 30, 0)),  # 7
], False)
sketch4.addConstraint([
    Sketcher.Constraint("Coincident", 0, 2, 1, 1),
    Sketcher.Constraint("Coincident", 1, 2, 2, 1),
    Sketcher.Constraint("Coincident", 2, 2, 3, 1),
    Sketcher.Constraint("Coincident", 3, 2, 0, 1),
    Sketcher.Constraint("Coincident", 4, 2, 5, 1),
    Sketcher.Constraint("Coincident", 5, 2, 6, 1),
    Sketcher.Constraint("Coincident", 6, 2, 7, 1),
    Sketcher.Constraint("Coincident", 7, 2, 4, 1),
    Sketcher.Constraint("Horizontal", 0),
    Sketcher.Constraint("Vertical", 1),
    Sketcher.Constraint("Horizontal", 2),
    Sketcher.Constraint("Vertical", 3),
    Sketcher.Constraint("Horizontal", 4),
    Sketcher.Constraint("Vertical", 5),
    Sketcher.Constraint("Horizontal", 6),
    Sketcher.Constraint("Vertical", 7),
    Sketcher.Constraint("Symmetric", 0, 2, 1, 2, -1, 1),
    Sketcher.Constraint("Symmetric", 2, 2, 4, 2, -1, 1),
    Sketcher.Constraint("Horizontal", 2, 2, 5, 2),
    Sketcher.Constraint("DistanceX", 0, 2, 0, 1, 100.0),
    Sketcher.Constraint("DistanceY", 1, 2, 1, 1, 60.0),
    Sketcher.Constraint("DistanceX", 4, 2, 4, 1, 21.337),
])
sketch4.setExpression("Constraints[19]", "Params.sketch4_width")
sketch4.setExpression("Constraints[20]", "Params.sketch4_height")
pocket2 = body.newObject("PartDesign::Pocket", "Pocket001")
pocket2.Profile = sketch4
pocket2.setExpression("Length", "Params.pocket2_length")

doc.recompute()
